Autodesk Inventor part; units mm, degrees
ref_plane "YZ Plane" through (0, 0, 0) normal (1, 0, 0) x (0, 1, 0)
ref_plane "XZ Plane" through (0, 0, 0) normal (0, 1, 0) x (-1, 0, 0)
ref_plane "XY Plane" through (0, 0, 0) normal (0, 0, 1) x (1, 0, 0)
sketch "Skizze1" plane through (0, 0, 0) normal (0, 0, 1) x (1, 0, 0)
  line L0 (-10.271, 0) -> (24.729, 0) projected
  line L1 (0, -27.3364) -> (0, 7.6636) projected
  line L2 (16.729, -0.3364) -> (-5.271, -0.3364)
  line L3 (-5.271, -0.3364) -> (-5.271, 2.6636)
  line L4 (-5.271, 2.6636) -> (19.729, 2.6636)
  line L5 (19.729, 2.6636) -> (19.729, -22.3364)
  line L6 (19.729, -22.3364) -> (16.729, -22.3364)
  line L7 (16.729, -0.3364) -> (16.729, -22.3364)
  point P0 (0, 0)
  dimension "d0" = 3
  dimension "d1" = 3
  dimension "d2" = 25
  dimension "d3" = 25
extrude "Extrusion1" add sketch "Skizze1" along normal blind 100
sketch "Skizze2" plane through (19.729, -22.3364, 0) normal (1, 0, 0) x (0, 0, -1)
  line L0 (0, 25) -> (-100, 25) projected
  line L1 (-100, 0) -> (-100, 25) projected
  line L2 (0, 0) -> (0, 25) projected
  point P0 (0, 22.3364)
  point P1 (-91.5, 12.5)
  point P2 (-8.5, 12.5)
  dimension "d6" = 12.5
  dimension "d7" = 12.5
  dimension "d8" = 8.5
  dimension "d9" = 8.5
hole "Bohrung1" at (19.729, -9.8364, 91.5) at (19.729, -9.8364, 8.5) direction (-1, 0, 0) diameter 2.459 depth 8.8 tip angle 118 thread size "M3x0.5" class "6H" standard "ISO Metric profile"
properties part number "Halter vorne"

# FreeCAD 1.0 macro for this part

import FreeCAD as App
import Part
import Sketcher

doc = App.newDocument("Part")
body = doc.addObject("PartDesign::Body", "Body")

# Sketch on XY plane
sketch1 = doc.addObject("Sketcher::SketchObject", "Sketch")
body.addObject(sketch1)
sketch1.AttachmentSupport = (doc.XY_Plane, [""])
sketch1.MapMode = "FlatFace"
sketch1.addGeometry([
    Part.LineSegment(App.Vector(-5.271, 2.6636, 0), App.Vector(-5.271, -0.3364, 0)),  # 0
    Part.LineSegment(App.Vector(-5.271, -0.3364, 0), App.Vector(16.729, -0.3364, 0)),  # 1
    Part.LineSegment(App.Vector(16.729, -0.3364, 0), App.Vector(16.729, -22.3364, 0)),  # 2
    Part.LineSegment(App.Vector(16.729, -22.3364, 0), App.Vector(19.729, -22.3364, 0)),  # 3
    Part.LineSegment(App.Vector(19.729, -22.3364, 0), App.Vector(19.729, 2.6636, 0)),  # 4
    Part.LineSegment(App.Vector(19.729, 2.6636, 0), App.Vector(-5.271, 2.6636, 0)),  # 5
], False)
sketch1.addConstraint([
    Sketcher.Constraint("Coincident", 0, 2, 1, 1),
    Sketcher.Constraint("Coincident", 1, 2, 2, 1),
    Sketcher.Constraint("Coincident", 2, 2, 3, 1),
    Sketcher.Constraint("Coincident", 3, 2, 4, 1),
    Sketcher.Constraint("Coincident", 4, 2, 5, 1),
    Sketcher.Constraint("Coincident", 5, 2, 0, 1),
    Sketcher.Constraint("Vertical", 0),
    Sketcher.Constraint("Horizontal", 1),
    Sketcher.Constraint("Vertical", 2),
    Sketcher.Constraint("Horizontal", 3),
    Sketcher.Constraint("Vertical", 4),
    Sketcher.Constraint("Horizontal", 5),
    Sketcher.Constraint("Equal", 3, 0),
    Sketcher.Constraint("Equal", 1, 2),
    Sketcher.Constraint("DistanceX", 3, 1, 3, 2, 3.0),
    Sketcher.Constraint("DistanceX", 5, 2, 5, 1, 25.0),
    Sketcher.Constraint("DistanceX", 0, 2, -1, 1, 5.271),
    Sketcher.Constraint("DistanceY", 0, 2, -1, 1, 0.3364),
])
pad1 = doc.addObject("PartDesign::Pad", "Pad")
body.addObject(pad1)
pad1.Profile = sketch1
pad1.Length = 100

# Sketch on YZ plane
sketch2 = doc.addObject("Sketcher::SketchObject", "Sketch001")
body.addObject(sketch2)
sketch2.AttachmentSupport = (doc.YZ_Plane, [""])
sketch2.MapMode = "FlatFace"
sketch2.AttachmentOffset = App.Placement(App.Vector(0, 0, 19.729), App.Rotation())
sketch2.addGeometry([
    Part.Circle(App.Vector(-9.8364, 91.5, 0), App.Vector(0, 0, 1), 1.2295),
    Part.Circle(App.Vector(-9.8364, 8.5, 0), App.Vector(0, 0, 1), 1.2295),
], False)
sketch2.addConstraint([
    Sketcher.Constraint("Equal", 0, 1),
    Sketcher.Constraint("Vertical", 0, 3, 1, 3),
    Sketcher.Constraint("Diameter", 0, 2.459),
    Sketcher.Constraint("DistanceY", 1, 3, 0, 3, 83.0),
    Sketcher.Constraint("DistanceY", -1, 1, 0, 3, 91.5),
    Sketcher.Constraint("DistanceX", 0, 3, -1, 1, 9.8364),
])
doc.recompute()
hole = doc.addObject("PartDesign::Hole", "Hole")
body.addObject(hole)
hole.Profile = sketch2
hole.ThreadType = "None"
hole.Diameter = 2.459
hole.DepthType = "Dimension"
hole.Depth = 8.8
hole.DrillPoint = "Angled"
hole.DrillPointAngle = 118

doc.recompute()
